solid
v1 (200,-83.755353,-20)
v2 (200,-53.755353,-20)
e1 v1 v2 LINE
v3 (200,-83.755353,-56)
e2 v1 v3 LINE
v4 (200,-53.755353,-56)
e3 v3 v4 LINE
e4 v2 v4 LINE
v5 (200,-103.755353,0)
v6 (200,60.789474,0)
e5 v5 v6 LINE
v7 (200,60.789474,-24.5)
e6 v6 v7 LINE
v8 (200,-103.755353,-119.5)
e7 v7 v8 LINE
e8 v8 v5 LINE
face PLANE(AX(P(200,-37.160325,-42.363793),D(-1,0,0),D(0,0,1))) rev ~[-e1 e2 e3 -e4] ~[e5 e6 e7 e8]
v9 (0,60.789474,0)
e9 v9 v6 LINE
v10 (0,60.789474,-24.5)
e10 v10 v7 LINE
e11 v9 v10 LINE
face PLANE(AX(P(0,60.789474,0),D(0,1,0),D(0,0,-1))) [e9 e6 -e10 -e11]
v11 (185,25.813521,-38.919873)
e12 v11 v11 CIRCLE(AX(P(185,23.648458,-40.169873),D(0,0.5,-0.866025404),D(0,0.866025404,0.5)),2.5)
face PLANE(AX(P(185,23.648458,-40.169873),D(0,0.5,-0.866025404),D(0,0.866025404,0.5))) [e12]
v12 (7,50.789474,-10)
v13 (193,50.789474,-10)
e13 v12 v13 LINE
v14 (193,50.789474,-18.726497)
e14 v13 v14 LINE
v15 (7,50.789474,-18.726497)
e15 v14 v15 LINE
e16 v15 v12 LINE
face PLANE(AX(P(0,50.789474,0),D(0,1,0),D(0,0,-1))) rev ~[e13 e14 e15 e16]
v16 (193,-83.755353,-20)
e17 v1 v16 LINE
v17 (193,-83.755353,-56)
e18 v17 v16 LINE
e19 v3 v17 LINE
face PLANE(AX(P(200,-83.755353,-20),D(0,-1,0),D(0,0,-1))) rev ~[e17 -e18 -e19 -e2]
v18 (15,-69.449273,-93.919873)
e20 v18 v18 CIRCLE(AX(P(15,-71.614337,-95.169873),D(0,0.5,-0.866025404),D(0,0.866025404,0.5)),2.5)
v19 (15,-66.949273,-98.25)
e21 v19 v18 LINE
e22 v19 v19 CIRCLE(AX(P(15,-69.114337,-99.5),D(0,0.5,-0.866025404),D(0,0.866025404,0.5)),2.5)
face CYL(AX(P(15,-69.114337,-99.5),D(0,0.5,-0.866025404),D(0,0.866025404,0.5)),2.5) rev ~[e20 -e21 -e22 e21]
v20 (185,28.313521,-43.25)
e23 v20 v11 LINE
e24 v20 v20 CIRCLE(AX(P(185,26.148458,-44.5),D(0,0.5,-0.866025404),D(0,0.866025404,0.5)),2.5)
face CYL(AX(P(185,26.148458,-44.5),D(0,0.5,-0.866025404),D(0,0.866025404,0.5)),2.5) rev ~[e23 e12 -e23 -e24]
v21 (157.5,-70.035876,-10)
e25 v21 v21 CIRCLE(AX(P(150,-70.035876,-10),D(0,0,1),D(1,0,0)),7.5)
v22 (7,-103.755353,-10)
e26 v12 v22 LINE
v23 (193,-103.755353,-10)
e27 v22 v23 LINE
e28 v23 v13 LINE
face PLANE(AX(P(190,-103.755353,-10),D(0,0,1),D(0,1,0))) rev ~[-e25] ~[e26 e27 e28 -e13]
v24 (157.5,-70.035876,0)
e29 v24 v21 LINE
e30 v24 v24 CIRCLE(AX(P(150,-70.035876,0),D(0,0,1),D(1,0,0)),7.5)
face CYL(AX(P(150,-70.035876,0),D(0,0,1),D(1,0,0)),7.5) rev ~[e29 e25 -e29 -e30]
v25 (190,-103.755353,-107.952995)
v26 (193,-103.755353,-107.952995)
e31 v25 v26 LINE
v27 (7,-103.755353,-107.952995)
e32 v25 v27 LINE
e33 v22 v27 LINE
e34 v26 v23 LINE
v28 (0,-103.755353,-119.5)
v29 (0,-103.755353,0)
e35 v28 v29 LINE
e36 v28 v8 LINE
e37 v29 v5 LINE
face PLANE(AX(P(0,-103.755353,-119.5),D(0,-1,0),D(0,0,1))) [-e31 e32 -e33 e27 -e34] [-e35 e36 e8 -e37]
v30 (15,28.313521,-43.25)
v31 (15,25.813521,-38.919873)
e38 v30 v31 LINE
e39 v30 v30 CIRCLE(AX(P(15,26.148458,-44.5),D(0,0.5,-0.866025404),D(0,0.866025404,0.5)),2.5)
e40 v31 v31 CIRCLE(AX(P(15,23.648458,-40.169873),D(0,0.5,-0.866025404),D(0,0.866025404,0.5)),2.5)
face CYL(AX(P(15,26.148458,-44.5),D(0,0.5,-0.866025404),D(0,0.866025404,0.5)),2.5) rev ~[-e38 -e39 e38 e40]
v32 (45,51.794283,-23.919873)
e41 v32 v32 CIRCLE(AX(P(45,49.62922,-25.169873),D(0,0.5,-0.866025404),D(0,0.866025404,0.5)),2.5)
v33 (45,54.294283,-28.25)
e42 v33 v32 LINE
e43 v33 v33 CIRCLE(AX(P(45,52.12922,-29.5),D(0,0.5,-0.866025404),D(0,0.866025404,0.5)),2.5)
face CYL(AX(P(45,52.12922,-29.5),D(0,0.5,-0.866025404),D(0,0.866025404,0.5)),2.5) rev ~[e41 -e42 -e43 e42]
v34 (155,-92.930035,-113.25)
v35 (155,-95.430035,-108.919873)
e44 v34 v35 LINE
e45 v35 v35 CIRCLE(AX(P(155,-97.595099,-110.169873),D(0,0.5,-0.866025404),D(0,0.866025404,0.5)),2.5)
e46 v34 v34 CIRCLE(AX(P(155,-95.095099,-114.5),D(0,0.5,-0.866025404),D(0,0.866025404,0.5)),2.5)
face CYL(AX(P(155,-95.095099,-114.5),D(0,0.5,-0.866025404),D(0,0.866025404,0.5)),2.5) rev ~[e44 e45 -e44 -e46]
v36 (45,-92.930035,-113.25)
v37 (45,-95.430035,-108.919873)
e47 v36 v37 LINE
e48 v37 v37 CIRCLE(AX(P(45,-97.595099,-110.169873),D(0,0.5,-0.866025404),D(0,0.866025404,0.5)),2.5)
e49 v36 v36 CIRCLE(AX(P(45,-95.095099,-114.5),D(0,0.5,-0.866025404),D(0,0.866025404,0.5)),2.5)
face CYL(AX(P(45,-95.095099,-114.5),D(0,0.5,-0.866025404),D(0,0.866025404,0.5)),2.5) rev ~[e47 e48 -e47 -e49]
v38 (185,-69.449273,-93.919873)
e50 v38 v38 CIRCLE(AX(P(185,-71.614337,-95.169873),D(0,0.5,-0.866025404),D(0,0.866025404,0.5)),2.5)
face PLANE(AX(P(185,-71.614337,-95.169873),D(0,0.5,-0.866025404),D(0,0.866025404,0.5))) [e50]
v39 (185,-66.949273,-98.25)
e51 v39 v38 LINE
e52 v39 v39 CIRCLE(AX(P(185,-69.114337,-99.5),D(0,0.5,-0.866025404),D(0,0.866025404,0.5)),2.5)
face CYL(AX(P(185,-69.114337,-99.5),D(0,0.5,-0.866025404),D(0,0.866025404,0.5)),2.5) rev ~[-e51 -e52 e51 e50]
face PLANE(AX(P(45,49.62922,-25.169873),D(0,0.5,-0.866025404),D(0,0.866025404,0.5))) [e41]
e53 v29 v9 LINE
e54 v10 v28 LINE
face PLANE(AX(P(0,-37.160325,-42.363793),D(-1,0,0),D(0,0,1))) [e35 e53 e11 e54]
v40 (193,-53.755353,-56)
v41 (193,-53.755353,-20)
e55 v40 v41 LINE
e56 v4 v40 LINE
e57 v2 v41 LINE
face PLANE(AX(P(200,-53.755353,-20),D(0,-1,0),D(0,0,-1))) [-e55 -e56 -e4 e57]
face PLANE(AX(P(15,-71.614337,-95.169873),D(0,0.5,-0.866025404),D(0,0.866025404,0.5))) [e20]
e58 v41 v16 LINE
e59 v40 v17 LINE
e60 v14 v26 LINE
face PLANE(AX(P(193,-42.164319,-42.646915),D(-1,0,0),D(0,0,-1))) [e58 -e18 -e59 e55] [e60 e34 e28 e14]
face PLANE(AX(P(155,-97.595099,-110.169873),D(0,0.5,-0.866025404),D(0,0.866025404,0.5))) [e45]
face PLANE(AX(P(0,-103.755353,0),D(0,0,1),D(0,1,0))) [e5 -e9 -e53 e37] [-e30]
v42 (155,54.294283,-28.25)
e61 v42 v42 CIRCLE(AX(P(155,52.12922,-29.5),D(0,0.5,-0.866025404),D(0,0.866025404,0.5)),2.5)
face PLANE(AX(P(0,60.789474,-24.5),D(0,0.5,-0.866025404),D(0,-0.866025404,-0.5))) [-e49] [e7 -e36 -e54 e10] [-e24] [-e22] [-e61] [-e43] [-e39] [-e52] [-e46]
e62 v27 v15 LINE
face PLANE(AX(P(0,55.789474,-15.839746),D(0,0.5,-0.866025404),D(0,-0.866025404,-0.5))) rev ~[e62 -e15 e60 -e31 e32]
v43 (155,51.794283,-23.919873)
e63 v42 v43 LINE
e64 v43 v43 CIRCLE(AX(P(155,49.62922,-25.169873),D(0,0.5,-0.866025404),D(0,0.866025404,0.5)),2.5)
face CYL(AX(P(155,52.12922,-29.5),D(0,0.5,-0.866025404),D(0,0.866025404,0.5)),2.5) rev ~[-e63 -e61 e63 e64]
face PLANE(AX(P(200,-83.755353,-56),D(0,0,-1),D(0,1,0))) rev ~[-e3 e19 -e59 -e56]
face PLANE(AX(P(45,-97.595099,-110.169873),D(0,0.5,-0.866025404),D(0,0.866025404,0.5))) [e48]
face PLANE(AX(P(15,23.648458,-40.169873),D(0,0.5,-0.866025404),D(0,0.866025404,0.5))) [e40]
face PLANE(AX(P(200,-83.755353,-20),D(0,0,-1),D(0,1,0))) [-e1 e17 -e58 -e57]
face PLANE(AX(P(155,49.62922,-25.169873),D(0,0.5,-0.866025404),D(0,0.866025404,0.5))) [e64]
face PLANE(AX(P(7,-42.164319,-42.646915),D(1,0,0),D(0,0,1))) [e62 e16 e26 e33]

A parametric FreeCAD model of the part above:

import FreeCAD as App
import Part
import Sketcher

V = App.Vector
Q = App.Units.Quantity


def faces_at(feature, points):
    """Names of the faces that lie closest to the given points."""
    faces = feature.Shape.Faces
    near = lambda p: min(range(len(faces)), key=lambda i: faces[i].distToShape(Part.Vertex(*p))[0])
    return sorted({f"Face{near(p) + 1}" for p in points})


def add_polygon(sketch, points):
    """Adds a closed chain of lines whose ends are joined by coincident constraints."""
    first, n = sketch.GeometryCount, len(points)
    for a, b in zip(points, points[1:] + points[:1]):
        sketch.addGeometry(Part.LineSegment(App.Vector(*a, 0), App.Vector(*b, 0)), False)
    for i in range(n):
        sketch.addConstraint(Sketcher.Constraint("Coincident", first + i, 2, first + (i + 1) % n, 1))

doc = App.newDocument("Part")
body = doc.addObject("PartDesign::Body", "Body")

sketch1 = body.newObject("Sketcher::SketchObject", "Sketch")
sketch1.AttachmentSupport = (doc.getObject("YZ_Plane"), [""])
sketch1.MapMode = "FlatFace"
add_polygon(sketch1, [(60.789474, -24.5), (60.789474, 0), (-103.755353, 0), (-103.755353, -119.5)])
sketch1.addConstraint([
    Sketcher.Constraint("Vertical", 0),
    Sketcher.Constraint("Horizontal", 1),
    Sketcher.Constraint("Vertical", 2),
    Sketcher.Constraint("PointOnObject", 0, 2, -1),
    Sketcher.Constraint("Angle", 3, Q("30 deg")),
    Sketcher.Constraint("Distance", 3, Q("190 mm")),
    Sketcher.Constraint("DistanceY", 0, 1, 0, 2, Q("24.5 mm")),
    Sketcher.Constraint("DistanceX", -1, 1, 0, 2, Q("60.789474 mm")),
])
pad1 = body.newObject("PartDesign::Pad", "Pad")
pad1.Profile = sketch1
pad1.Length = 200
doc.recompute()

thickness = body.newObject("PartDesign::Thickness", "Thickness")
thickness.Base = (pad1, faces_at(pad1, [(100, -103.755, -59.75)]))
thickness.Value = 10
thickness.Reversed = True
thickness.Join = "Intersection"

sketch2 = body.newObject("Sketcher::SketchObject", "Sketch001")
sketch2.AttachmentSupport = (doc.getObject("YZ_Plane"), [""])
sketch2.MapMode = "FlatFace"
sketch2.AttachmentOffset = App.Placement(V(0, 0, 190), App.Rotation())
add_polygon(sketch2, [(50.789474, -18.726497), (50.789474, -10), (-103.755353, -10), (-103.755353, -107.952995)])
sketch2.addConstraint([
    Sketcher.Constraint("Vertical", 0),
    Sketcher.Constraint("Horizontal", 1),
    Sketcher.Constraint("Vertical", 2),
    Sketcher.Constraint("Angle", 3, Q("30 deg")),
    Sketcher.Constraint("DistanceY", 0, 2, -1, 1, Q("10 mm")),
    Sketcher.Constraint("DistanceX", 1, 2, 1, 1, Q("154.544827 mm")),
    Sketcher.Constraint("DistanceY", 0, 1, 0, 2, Q("8.726497 mm")),
    Sketcher.Constraint("DistanceX", -1, 1, 0, 2, Q("50.789474 mm")),
])
pocket1 = body.newObject("PartDesign::Pocket", "Pocket")
pocket1.Profile = sketch2
pocket1.Length = 3
pocket1.Reversed = True

sketch3 = body.newObject("Sketcher::SketchObject", "Sketch002")
sketch3.AttachmentSupport = (doc.getObject("YZ_Plane"), [""])
sketch3.MapMode = "FlatFace"
sketch3.AttachmentOffset = App.Placement(V(0, 0, 10), App.Rotation())
add_polygon(sketch3, [(50.789474, -10), (50.789474, -18.726497), (-103.755353, -107.952995), (-103.755353, -10)])
sketch3.addConstraint([
    Sketcher.Constraint("Vertical", 0),
    Sketcher.Constraint("Vertical", 2),
    Sketcher.Constraint("Horizontal", 3),
    Sketcher.Constraint("Angle", 1, Q("-150 deg")),
    Sketcher.Constraint("DistanceY", 2, 2, -1, 1, Q("10 mm")),
    Sketcher.Constraint("DistanceX", 3, 1, 3, 2, Q("154.544827 mm")),
    Sketcher.Constraint("DistanceY", 0, 2, 0, 1, Q("8.726497 mm")),
    Sketcher.Constraint("DistanceX", -1, 1, 0, 2, Q("50.789474 mm")),
])
pocket2 = body.newObject("PartDesign::Pocket", "Pocket001")
pocket2.Profile = sketch3
pocket2.Length = 3

sketch4 = body.newObject("Sketcher::SketchObject", "Sketch003")
sketch4.Placement = App.Placement(V(0, 25.80618, -44.697614), App.Rotation(V(-1, 0, 0), V(0, 0.866025404, 0.5), V(0, 0.5, -0.866025404), "ZXY"))
sketch4.addGeometry([
    Part.Circle(V(-185, 0.395228, 0), V(0, 0, 1), 2.5),
    Part.Circle(V(-185, -109.604772, 0), V(0, 0, 1), 2.5),
    Part.Circle(V(-155, -139.604772, 0), V(0, 0, 1), 2.5),
    Part.Circle(V(-45, -139.604772, 0), V(0, 0, 1), 2.5),
    Part.Circle(V(-15, -109.604772, 0), V(0, 0, 1), 2.5),
    Part.Circle(V(-15, 0.395228, 0), V(0, 0, 1), 2.5),
    Part.Circle(V(-45, 30.395229, 0), V(0, 0, 1), 2.5),
    Part.Circle(V(-155, 30.395229, 0), V(0, 0, 1), 2.5),
], False)
sketch4.addConstraint([
    Sketcher.Constraint("Equal", 0, 1),
    Sketcher.Constraint("Equal", 1, 2),
    Sketcher.Constraint("Equal", 2, 3),
    Sketcher.Constraint("Equal", 3, 4),
    Sketcher.Constraint("Equal", 4, 5),
    Sketcher.Constraint("Equal", 5, 6),
    Sketcher.Constraint("Equal", 6, 7),
    Sketcher.Constraint("Horizontal", 2, 3, 3, 3),
    Sketcher.Constraint("Horizontal", 1, 3, 4, 3),
    Sketcher.Constraint("Horizontal", 0, 3, 5, 3),
    Sketcher.Constraint("Horizontal", 6, 3, 7, 3),
    Sketcher.Constraint("Vertical", 0, 3, 1, 3),
    Sketcher.Constraint("Vertical", 4, 3, 5, 3),
    Sketcher.Constraint("Vertical", 3, 3, 6, 3),
    Sketcher.Constraint("Vertical", 2, 3, 7, 3),
    Sketcher.Constraint("Diameter", 0, Q("5 mm")),
    Sketcher.Constraint("DistanceX", 0, 3, -1, 1, Q("185 mm")),
    Sketcher.Constraint("DistanceX", 2, 3, -1, 1, Q("155 mm")),
    Sketcher.Constraint("DistanceX", 3, 3, -1, 1, Q("45 mm")),
    Sketcher.Constraint("DistanceX", 4, 3, -1, 1, Q("15 mm")),
    Sketcher.Constraint("DistanceY", 1, 3, 0, 3, Q("110 mm")),
    Sketcher.Constraint("DistanceY", 2, 3, 1, 3, Q("30 mm")),
    Sketcher.Constraint("DistanceY", 5, 3, 6, 3, Q("30 mm")),
    Sketcher.Constraint("DistanceY", -1, 1, 0, 3, Q("0.395228 mm")),
])
pocket3 = body.newObject("PartDesign::Pocket", "Pocket002")
pocket3.Profile = sketch4
pocket3.Length = 5

sketch5 = body.newObject("Sketcher::SketchObject", "Sketch004")
sketch5.AttachmentSupport = (doc.getObject("YZ_Plane"), [""])
sketch5.MapMode = "FlatFace"
sketch5.AttachmentOffset = App.Placement(V(0, 0, 200), App.Rotation())
add_polygon(sketch5, [(-53.755353, -20), (-83.755353, -20), (-83.755353, -56), (-53.755353, -56)])
sketch5.addConstraint([
    Sketcher.Constraint("Horizontal", 0),
    Sketcher.Constraint("Vertical", 1),
    Sketcher.Constraint("Horizontal", 2),
    Sketcher.Constraint("Vertical", 3),
    Sketcher.Constraint("DistanceX", 0, 2, 0, 1, Q("30 mm")),
    Sketcher.Constraint("DistanceY", 1, 2, 1, 1, Q("36 mm")),
    Sketcher.Constraint("DistanceY", 0, 2, -1, 1, Q("20 mm")),
    Sketcher.Constraint("DistanceX", 0, 2, -1, 1, Q("83.755353 mm")),
])
pocket4 = body.newObject("PartDesign::Pocket", "Pocket003")
pocket4.Profile = sketch5
pocket4.Length = 20

sketch6 = body.newObject("Sketcher::SketchObject", "Sketch005")
sketch6.AttachmentSupport = (doc.getObject("XY_Plane"), [""])
sketch6.MapMode = "FlatFace"
sketch6.addGeometry(Part.Circle(V(150, -70.035876, 0), V(0, 0, 1), 7.5), False)
sketch6.addConstraint([
    Sketcher.Constraint("Diameter", 0, Q("15 mm")),
    Sketcher.Constraint("DistanceX", -1, 1, 0, 3, Q("150 mm")),
    Sketcher.Constraint("DistanceY", 0, 3, -1, 1, Q("70.035876 mm")),
])
pocket5 = body.newObject("PartDesign::Pocket", "Pocket004")
pocket5.Profile = sketch6
pocket5.Length = 20

doc.recompute()
